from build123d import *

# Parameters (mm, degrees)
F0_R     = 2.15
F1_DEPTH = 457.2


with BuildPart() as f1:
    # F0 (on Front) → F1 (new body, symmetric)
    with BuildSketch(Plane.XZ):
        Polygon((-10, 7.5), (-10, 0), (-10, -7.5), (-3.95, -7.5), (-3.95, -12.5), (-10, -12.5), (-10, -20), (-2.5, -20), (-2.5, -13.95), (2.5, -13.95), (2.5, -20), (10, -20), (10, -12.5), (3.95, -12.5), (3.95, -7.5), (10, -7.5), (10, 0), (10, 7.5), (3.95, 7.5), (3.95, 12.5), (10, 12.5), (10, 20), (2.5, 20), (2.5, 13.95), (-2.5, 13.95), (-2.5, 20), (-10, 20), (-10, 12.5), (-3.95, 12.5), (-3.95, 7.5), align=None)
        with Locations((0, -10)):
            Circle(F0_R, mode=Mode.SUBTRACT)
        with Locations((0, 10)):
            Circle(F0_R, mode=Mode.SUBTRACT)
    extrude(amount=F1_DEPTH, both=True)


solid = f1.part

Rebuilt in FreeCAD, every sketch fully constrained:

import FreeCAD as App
import Part
import Sketcher

doc = App.newDocument("Part")
params = doc.addObject("Spreadsheet::Sheet", "Params")
for row, (alias, value) in enumerate([
    ("sketch1_diameter", "4.3 mm"),
    ("sketch1_width", "5 mm"),
    ("sketch1_height", "15 mm"),
    ("sketch1_width2", "7.5 mm"),
    ("sketch1_width3", "6.05 mm"),
    ("pad1_length", "914.4 mm"),
], start=1):
    params.set(f"A{row}", alias)
    params.set(f"B{row}", "=" + value)
    params.setAlias(f"B{row}", alias)

body = doc.addObject("PartDesign::Body", "Body")

sketch1 = body.newObject("Sketcher::SketchObject", "Sketch")
sketch1.AttachmentSupport = (doc.getObject("XZ_Plane"), [""])
sketch1.MapMode = "FlatFace"
sketch1.addGeometry([
    Part.LineSegment(App.Vector(-10, 7.5, 0), App.Vector(-10, -7.5, 0)),
    Part.LineSegment(App.Vector(-10, -7.5, 0), App.Vector(-4, -7.5, 0)),
    Part.LineSegment(App.Vector(-4, -7.5, 0), App.Vector(-4, -12.5, 0)),
    Part.LineSegment(App.Vector(-4, -12.5, 0), App.Vector(-10, -12.5, 0)),
    Part.LineSegment(App.Vector(-10, -12.5, 0), App.Vector(-10, -20, 0)),
    Part.LineSegment(App.Vector(-10, -20, 0), App.Vector(-2.5, -20, 0)),
    Part.LineSegment(App.Vector(-2.5, -20, 0), App.Vector(-2.5, -13.9, 0)),
    Part.LineSegment(App.Vector(-2.5, -13.9, 0), App.Vector(2.5, -13.9, 0)),
    Part.LineSegment(App.Vector(2.5, -13.9, 0), App.Vector(2.5, -20, 0)),
    Part.LineSegment(App.Vector(2.5, -20, 0), App.Vector(10, -20, 0)),
    Part.LineSegment(App.Vector(10, -20, 0), App.Vector(10, -12.5, 0)),
    Part.LineSegment(App.Vector(10, -12.5, 0), App.Vector(4, -12.5, 0)),
    Part.LineSegment(App.Vector(4, -12.5, 0), App.Vector(4, -7.5, 0)),
    Part.LineSegment(App.Vector(4, -7.5, 0), App.Vector(10, -7.5, 0)),
    Part.LineSegment(App.Vector(10, -7.5, 0), App.Vector(10, 7.5, 0)),
    Part.LineSegment(App.Vector(10, 7.5, 0), App.Vector(4, 7.5, 0)),
    Part.LineSegment(App.Vector(4, 7.5, 0), App.Vector(4, 12.5, 0)),
    Part.LineSegment(App.Vector(4, 12.5, 0), App.Vector(10, 12.5, 0)),
    Part.LineSegment(App.Vector(10, 12.5, 0), App.Vector(10, 20, 0)),
    Part.LineSegment(App.Vector(10, 20, 0), App.Vector(2.5, 20, 0)),
    Part.LineSegment(App.Vector(2.5, 20, 0), App.Vector(2.5, 13.9, 0)),
    Part.LineSegment(App.Vector(2.5, 13.9, 0), App.Vector(-2.5, 13.9, 0)),
    Part.LineSegment(App.Vector(-2.5, 13.9, 0), App.Vector(-2.5, 20, 0)),
    Part.LineSegment(App.Vector(-2.5, 20, 0), App.Vector(-10, 20, 0)),
    Part.LineSegment(App.Vector(-10, 20, 0), App.Vector(-10, 12.5, 0)),
    Part.LineSegment(App.Vector(-10, 12.5, 0), App.Vector(-4, 12.5, 0)),
    Part.LineSegment(App.Vector(-4, 12.5, 0), App.Vector(-4, 7.5, 0)),
    Part.LineSegment(App.Vector(-4, 7.5, 0), App.Vector(-10, 7.5, 0)),
    Part.Circle(App.Vector(0, -10, 0), App.Vector(0, 0, 1), 2.1),
    Part.Circle(App.Vector(0, 10, 0), App.Vector(0, 0, 1), 2.1),
], False)
sketch1.addConstraint([
    Sketcher.Constraint("Coincident", 0, 2, 1, 1),
    Sketcher.Constraint("Coincident", 1, 2, 2, 1),
    Sketcher.Constraint("Coincident", 2, 2, 3, 1),
    Sketcher.Constraint("Coincident", 3, 2, 4, 1),
    Sketcher.Constraint("Coincident", 4, 2, 5, 1),
    Sketcher.Constraint("Coincident", 5, 2, 6, 1),
    Sketcher.Constraint("Coincident", 6, 2, 7, 1),
    Sketcher.Constraint("Coincident", 7, 2, 8, 1),
    Sketcher.Constraint("Coincident", 8, 2, 9, 1),
    Sketcher.Constraint("Coincident", 9, 2, 10, 1),
    Sketcher.Constraint("Coincident", 10, 2, 11, 1),
    Sketcher.Constraint("Coincident", 11, 2, 12, 1),
    Sketcher.Constraint("Coincident", 12, 2, 13, 1),
    Sketcher.Constraint("Coincident", 13, 2, 14, 1),
    Sketcher.Constraint("Coincident", 14, 2, 15, 1),
    Sketcher.Constraint("Coincident", 15, 2, 16, 1),
    Sketcher.Constraint("Coincident", 16, 2, 17, 1),
    Sketcher.Constraint("Coincident", 17, 2, 18, 1),
    Sketcher.Constraint("Coincident", 18, 2, 19, 1),
    Sketcher.Constraint("Coincident", 19, 2, 20, 1),
    Sketcher.Constraint("Coincident", 20, 2, 21, 1),
    Sketcher.Constraint("Coincident", 21, 2, 22, 1),
    Sketcher.Constraint("Coincident", 22, 2, 23, 1),
    Sketcher.Constraint("Coincident", 23, 2, 24, 1),
    Sketcher.Constraint("Coincident", 24, 2, 25, 1),
    Sketcher.Constraint("Coincident", 25, 2, 26, 1),
    Sketcher.Constraint("Coincident", 26, 2, 27, 1),
    Sketcher.Constraint("Coincident", 27, 2, 0, 1),
    Sketcher.Constraint("Vertical", 0),
    Sketcher.Constraint("Horizontal", 1),
    Sketcher.Constraint("Vertical", 2),
    Sketcher.Constraint("Horizontal", 3),
    Sketcher.Constraint("Vertical", 4),
    Sketcher.Constraint("Horizontal", 5),
    Sketcher.Constraint("Vertical", 6),
    Sketcher.Constraint("Horizontal", 7),
    Sketcher.Constraint("Vertical", 8),
    Sketcher.Constraint("Horizontal", 9),
    Sketcher.Constraint("Vertical", 10),
    Sketcher.Constraint("Horizontal", 11),
    Sketcher.Constraint("Vertical", 12),
    Sketcher.Constraint("Horizontal", 13),
    Sketcher.Constraint("Vertical", 14),
    Sketcher.Constraint("Horizontal", 15),
    Sketcher.Constraint("Vertical", 16),
    Sketcher.Constraint("Horizontal", 17),
    Sketcher.Constraint("Vertical", 18),
    Sketcher.Constraint("Horizontal", 19),
    Sketcher.Constraint("Vertical", 20),
    Sketcher.Constraint("Horizontal", 21),
    Sketcher.Constraint("Vertical", 22),
    Sketcher.Constraint("Horizontal", 23),
    Sketcher.Constraint("Vertical", 24),
    Sketcher.Constraint("Horizontal", 25),
    Sketcher.Constraint("Vertical", 26),
    Sketcher.Constraint("Horizontal", 27),
    Sketcher.Constraint("Equal", 28, 29),
    Sketcher.Constraint("Symmetric", 28, 3, 29, 3, -1, 1),
    Sketcher.Constraint("Symmetric", 0, 2, 14, 2, -1, 1),
    Sketcher.Constraint("Symmetric", 2, 2, 16, 2, -1, 1),
    Sketcher.Constraint("Symmetric", 4, 2, 18, 2, -1, 1),
    Sketcher.Constraint("Symmetric", 6, 2, 20, 2, -1, 1),
    Sketcher.Constraint("Symmetric", 8, 2, 22, 2, -1, 1),
    Sketcher.Constraint("Symmetric", 10, 2, 24, 2, -1, 1),
    Sketcher.Constraint("Symmetric", 12, 2, 26, 2, -1, 1),
    Sketcher.Constraint("Symmetric", 5, 2, 8, 2, -2),
    Sketcher.Constraint("Symmetric", 3, 2, 10, 2, -2),
    Sketcher.Constraint("Symmetric", 1, 2, 12, 2, -2),
    Sketcher.Constraint("PointOnObject", 28, 3, -2),
    Sketcher.Constraint("Vertical", 0, 2, 3, 2),
    Sketcher.Constraint("Equal", 21, 2),
    Sketcher.Constraint("Equal", 23, 4),
    Sketcher.Constraint("Equal", 27, 6),
    Sketcher.Constraint("Diameter", 28, 4.3),
    Sketcher.Constraint("DistanceX", 7, 1, 7, 2, 5.0),
    Sketcher.Constraint("DistanceY", 0, 2, 0, 1, 15.0),
    Sketcher.Constraint("DistanceX", 5, 1, 5, 2, 7.5),
    Sketcher.Constraint("DistanceY", 28, 3, -1, 1, 10.0),
    Sketcher.Constraint("DistanceX", 1, 1, 1, 2, 6.05),
])
sketch1.setExpression("Constraints[73]", "Params.sketch1_diameter")
sketch1.setExpression("Constraints[74]", "Params.sketch1_width")
sketch1.setExpression("Constraints[75]", "Params.sketch1_height")
sketch1.setExpression("Constraints[76]", "Params.sketch1_width2")
sketch1.setExpression("Constraints[78]", "Params.sketch1_width3")
pad1 = body.newObject("PartDesign::Pad", "Pad")
pad1.Profile = sketch1
pad1.setExpression("Length", "Params.pad1_length")
pad1.Midplane = True

doc.recompute()
